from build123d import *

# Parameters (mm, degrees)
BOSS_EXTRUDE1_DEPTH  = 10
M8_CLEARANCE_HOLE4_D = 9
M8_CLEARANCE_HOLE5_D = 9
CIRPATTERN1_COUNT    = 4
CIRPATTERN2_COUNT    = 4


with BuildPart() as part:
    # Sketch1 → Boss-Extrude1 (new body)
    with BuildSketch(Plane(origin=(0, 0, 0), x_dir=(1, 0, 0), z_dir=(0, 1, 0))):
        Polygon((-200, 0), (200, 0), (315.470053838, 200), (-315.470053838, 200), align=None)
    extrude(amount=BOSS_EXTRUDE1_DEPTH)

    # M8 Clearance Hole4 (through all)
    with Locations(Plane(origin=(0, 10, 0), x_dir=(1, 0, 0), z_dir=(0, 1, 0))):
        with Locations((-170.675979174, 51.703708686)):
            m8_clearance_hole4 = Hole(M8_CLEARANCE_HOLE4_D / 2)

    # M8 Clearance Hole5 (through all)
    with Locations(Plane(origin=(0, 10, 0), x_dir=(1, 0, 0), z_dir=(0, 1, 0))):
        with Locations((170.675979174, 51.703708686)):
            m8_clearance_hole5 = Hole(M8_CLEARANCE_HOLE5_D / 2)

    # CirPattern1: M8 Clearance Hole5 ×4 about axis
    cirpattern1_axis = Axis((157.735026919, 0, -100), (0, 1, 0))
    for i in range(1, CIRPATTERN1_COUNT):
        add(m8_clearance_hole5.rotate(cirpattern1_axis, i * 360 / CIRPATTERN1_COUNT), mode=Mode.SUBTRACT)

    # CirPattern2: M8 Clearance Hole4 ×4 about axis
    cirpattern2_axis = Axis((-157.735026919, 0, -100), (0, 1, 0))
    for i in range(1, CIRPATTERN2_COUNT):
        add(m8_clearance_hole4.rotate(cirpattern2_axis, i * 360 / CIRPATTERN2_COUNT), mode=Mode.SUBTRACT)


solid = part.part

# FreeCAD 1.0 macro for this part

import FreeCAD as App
import Part
import Sketcher
Q = App.Units.Quantity


def add_polygon(sketch, points):
    """Adds a closed chain of lines whose ends are joined by coincident constraints."""
    first, n = sketch.GeometryCount, len(points)
    for a, b in zip(points, points[1:] + points[:1]):
        sketch.addGeometry(Part.LineSegment(App.Vector(*a, 0), App.Vector(*b, 0)), False)
    for i in range(n):
        sketch.addConstraint(Sketcher.Constraint("Coincident", first + i, 2, first + (i + 1) % n, 1))

doc = App.newDocument("Part")
body = doc.addObject("PartDesign::Body", "Body")

sketch1 = body.newObject("Sketcher::SketchObject", "Sketch")
sketch1.AttachmentSupport = (doc.getObject("XZ_Plane"), [""])
sketch1.MapMode = "FlatFace"
add_polygon(sketch1, [(-200, 0), (200, 0), (315.470054, -200), (-315.470054, -200)])
sketch1.addConstraint([
    Sketcher.Constraint("Horizontal", 0),
    Sketcher.Constraint("Horizontal", 2),
    Sketcher.Constraint("Symmetric", 0, 2, 3, 2, -1, 1),
    Sketcher.Constraint("Equal", 1, 3),
    Sketcher.Constraint("DistanceX", 0, 1, 0, 2, Q("400 mm")),
    Sketcher.Constraint("Angle", 1, Q("-60 deg")),
    Sketcher.Constraint("DistanceY", 1, 2, -1, 1, Q("200 mm")),
])
pad1 = body.newObject("PartDesign::Pad", "Pad")
pad1.Profile = sketch1
pad1.Length = 10
pad1.Reversed = True

sketch2 = body.newObject("Sketcher::SketchObject", "Sketch001")
sketch2.AttachmentSupport = (doc.getObject("XZ_Plane"), [""])
sketch2.MapMode = "FlatFace"
sketch2.AttachmentOffset = App.Placement(App.Vector(0, 0, -10), App.Rotation())
sketch2.addGeometry(Part.Circle(App.Vector(-170.675979, -51.703709, 0), App.Vector(0, 0, 1), 4.5), False)
sketch2.addConstraint([
    Sketcher.Constraint("Diameter", 0, Q("9 mm")),
    Sketcher.Constraint("DistanceX", 0, 3, -1, 1, Q("170.675979 mm")),
    Sketcher.Constraint("DistanceY", 0, 3, -1, 1, Q("51.703709 mm")),
])
doc.recompute()
hole = body.newObject("PartDesign::Hole", "Hole")
hole.Profile = sketch2
hole.ThreadType = "None"
hole.Diameter = 9
hole.DepthType = "ThroughAll"
hole.Reversed = True

sketch3 = body.newObject("Sketcher::SketchObject", "Sketch002")
sketch3.AttachmentSupport = (doc.getObject("XZ_Plane"), [""])
sketch3.MapMode = "FlatFace"
sketch3.AttachmentOffset = App.Placement(App.Vector(0, 0, -10), App.Rotation())
sketch3.addGeometry(Part.Circle(App.Vector(170.675979, -51.703709, 0), App.Vector(0, 0, 1), 4.5), False)
sketch3.addConstraint([
    Sketcher.Constraint("Diameter", 0, Q("9 mm")),
    Sketcher.Constraint("DistanceX", -1, 1, 0, 3, Q("170.675979 mm")),
    Sketcher.Constraint("DistanceY", 0, 3, -1, 1, Q("51.703709 mm")),
])
doc.recompute()
hole2 = body.newObject("PartDesign::Hole", "Hole001")
hole2.Profile = sketch3
hole2.ThreadType = "None"
hole2.Diameter = 9
hole2.DepthType = "ThroughAll"
hole2.Reversed = True
doc.recompute()

datumline = body.newObject("PartDesign::Line", "DatumLine")
datumline.Placement = App.Placement(App.Vector(157.735027, 0, -100), App.Rotation(App.Vector(0, 0, 1), App.Vector(0, 1, 0)))
polarpattern = body.newObject("PartDesign::PolarPattern", "PolarPattern")
polarpattern.Originals = [hole2]
polarpattern.Axis = (datumline, [""])
polarpattern.Angle = 360
polarpattern.Occurrences = 4
body.Tip = polarpattern
doc.recompute()

datumline2 = body.newObject("PartDesign::Line", "DatumLine001")
datumline2.Placement = App.Placement(App.Vector(-157.735027, 0, -100), App.Rotation(App.Vector(0, 0, 1), App.Vector(0, 1, 0)))
polarpattern2 = body.newObject("PartDesign::PolarPattern", "PolarPattern001")
polarpattern2.Originals = [hole]
polarpattern2.Axis = (datumline2, [""])
polarpattern2.Angle = 360
polarpattern2.Occurrences = 4
body.Tip = polarpattern2

doc.recompute()
